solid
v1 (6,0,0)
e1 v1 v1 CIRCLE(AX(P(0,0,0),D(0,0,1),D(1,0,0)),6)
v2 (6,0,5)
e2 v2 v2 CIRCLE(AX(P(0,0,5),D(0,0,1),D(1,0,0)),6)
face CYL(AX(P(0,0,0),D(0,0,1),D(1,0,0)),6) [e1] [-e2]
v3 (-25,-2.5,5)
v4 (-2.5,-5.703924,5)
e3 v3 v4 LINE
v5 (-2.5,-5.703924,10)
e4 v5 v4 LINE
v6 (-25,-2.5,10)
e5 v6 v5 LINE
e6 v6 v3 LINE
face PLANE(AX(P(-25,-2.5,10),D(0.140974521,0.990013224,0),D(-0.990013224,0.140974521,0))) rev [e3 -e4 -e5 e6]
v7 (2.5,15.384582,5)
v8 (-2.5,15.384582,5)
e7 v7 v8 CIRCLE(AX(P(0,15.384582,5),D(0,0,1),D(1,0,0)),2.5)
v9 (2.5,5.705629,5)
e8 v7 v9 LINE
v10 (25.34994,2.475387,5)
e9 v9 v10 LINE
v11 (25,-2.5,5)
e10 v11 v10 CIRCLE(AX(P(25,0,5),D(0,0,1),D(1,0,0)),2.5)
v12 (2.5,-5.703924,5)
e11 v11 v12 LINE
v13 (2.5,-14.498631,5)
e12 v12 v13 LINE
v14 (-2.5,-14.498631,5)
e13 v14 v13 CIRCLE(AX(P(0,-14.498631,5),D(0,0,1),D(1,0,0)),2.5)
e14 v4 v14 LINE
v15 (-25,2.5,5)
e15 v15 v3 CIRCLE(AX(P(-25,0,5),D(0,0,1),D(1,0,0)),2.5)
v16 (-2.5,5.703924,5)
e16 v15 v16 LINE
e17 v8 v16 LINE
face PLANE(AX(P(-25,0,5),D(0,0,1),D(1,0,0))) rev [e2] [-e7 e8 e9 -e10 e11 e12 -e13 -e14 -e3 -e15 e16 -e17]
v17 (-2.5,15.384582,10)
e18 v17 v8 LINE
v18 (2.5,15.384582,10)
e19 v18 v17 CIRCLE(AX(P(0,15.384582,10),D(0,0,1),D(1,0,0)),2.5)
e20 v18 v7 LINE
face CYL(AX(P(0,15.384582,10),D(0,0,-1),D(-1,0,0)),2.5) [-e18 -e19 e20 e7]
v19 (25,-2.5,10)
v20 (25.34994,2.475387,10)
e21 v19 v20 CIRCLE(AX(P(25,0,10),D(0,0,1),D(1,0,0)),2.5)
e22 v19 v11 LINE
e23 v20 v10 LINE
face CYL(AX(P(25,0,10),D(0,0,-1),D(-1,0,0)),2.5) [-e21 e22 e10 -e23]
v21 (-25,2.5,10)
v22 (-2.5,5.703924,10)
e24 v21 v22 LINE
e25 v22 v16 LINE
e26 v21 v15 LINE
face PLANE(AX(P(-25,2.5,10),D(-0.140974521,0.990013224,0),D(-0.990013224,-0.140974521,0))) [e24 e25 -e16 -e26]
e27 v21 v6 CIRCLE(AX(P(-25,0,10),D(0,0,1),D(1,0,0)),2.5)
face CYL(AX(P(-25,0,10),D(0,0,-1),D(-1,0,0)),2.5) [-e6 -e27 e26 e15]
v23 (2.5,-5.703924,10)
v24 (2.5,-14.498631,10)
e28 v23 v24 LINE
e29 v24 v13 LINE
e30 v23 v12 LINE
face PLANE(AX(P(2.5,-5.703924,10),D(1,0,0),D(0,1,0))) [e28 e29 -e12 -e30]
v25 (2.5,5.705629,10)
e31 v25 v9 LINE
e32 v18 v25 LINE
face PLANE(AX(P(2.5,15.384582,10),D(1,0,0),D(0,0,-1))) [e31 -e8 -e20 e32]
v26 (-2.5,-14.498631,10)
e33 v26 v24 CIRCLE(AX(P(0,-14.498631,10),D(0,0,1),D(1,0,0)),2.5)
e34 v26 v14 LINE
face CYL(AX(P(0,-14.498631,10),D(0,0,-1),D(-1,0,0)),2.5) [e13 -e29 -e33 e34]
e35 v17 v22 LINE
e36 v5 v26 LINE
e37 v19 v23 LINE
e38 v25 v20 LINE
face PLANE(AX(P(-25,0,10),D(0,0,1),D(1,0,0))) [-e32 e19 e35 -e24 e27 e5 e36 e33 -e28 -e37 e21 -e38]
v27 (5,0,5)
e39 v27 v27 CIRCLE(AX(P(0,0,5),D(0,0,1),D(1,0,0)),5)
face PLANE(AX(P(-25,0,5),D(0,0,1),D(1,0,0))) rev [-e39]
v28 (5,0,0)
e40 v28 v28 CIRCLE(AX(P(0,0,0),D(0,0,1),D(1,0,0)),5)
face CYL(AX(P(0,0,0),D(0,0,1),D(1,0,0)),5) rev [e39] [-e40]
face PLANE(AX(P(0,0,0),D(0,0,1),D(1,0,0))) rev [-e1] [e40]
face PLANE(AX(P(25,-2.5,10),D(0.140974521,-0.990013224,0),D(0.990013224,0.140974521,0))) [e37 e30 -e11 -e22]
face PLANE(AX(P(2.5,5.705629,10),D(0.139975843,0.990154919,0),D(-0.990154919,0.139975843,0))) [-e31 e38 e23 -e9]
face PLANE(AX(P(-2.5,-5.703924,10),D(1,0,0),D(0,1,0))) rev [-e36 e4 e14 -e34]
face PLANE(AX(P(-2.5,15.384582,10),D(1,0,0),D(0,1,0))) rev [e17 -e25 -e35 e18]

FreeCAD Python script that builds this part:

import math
import FreeCAD as App
import Part
import Sketcher
from FreeCAD import Vector
Q = App.Units.Quantity

doc = App.newDocument("Part")
body = doc.addObject("PartDesign::Body", "Body")

sketch1 = body.newObject("Sketcher::SketchObject", "Sketch")
sketch1.AttachmentSupport = (doc.getObject("XY_Plane"), [""])
sketch1.MapMode = "FlatFace"
sketch1.addGeometry(Part.Circle(Vector(0, 0, 0), Vector(0, 0, 1), 6), False)
sketch1.addGeometry(Part.Circle(Vector(0, 0, 0), Vector(0, 0, 1), 5), False)
sketch1.addConstraint(Sketcher.Constraint("Coincident", 0, 3, -1, 1))
sketch1.addConstraint(Sketcher.Constraint("Coincident", 1, 3, -1, 1))
sketch1.addConstraint(Sketcher.Constraint("Diameter", 0, Q("12 mm")))
sketch1.addConstraint(Sketcher.Constraint("Diameter", 1, Q("10 mm")))

sketch2 = body.newObject("Sketcher::SketchObject", "Sketch001")
sketch2.AttachmentSupport = (doc.getObject("XZ_Plane"), [""])
sketch2.MapMode = "FlatFace"
sketch2.addGeometry(Part.LineSegment(Vector(0, 0, 0), Vector(0, 5, 0)), False)
sketch2.addConstraint(Sketcher.Constraint("Vertical", 0))
sketch2.addConstraint(Sketcher.Constraint("Coincident", 0, 1, -1, 1))
sketch2.addConstraint(Sketcher.Constraint("DistanceY", 0, 1, 0, 2, Q("5 mm")))
doc.recompute()

additivepipe = body.newObject("PartDesign::AdditivePipe", "AdditivePipe")
additivepipe.Profile = sketch1
additivepipe.Spine = (sketch2, ["Edge1"])

sketch3 = body.newObject("Sketcher::SketchObject", "Sketch002")
sketch3.AttachmentSupport = (doc.getObject("XY_Plane"), [""])
sketch3.MapMode = "FlatFace"
sketch3.AttachmentOffset = App.Placement(Vector(0, 0, 5), App.Rotation())
sketch3.addGeometry(Part.LineSegment(Vector(-2.5, 5.7, 0), Vector(-25, 2.5, 0)), False)
sketch3.addGeometry(Part.ArcOfCircle(Part.Circle(Vector(-25, 0, 0), Vector(0, 0, 1), 2.5), math.radians(90), math.radians(270)), False)
sketch3.addGeometry(Part.LineSegment(Vector(-25, -2.5, 0), Vector(-2.5, -5.7, 0)), False)
sketch3.addGeometry(Part.LineSegment(Vector(-2.5, -5.7, 0), Vector(-2.5, -14.5, 0)), False)
sketch3.addGeometry(Part.ArcOfCircle(Part.Circle(Vector(0, -14.5, 0), Vector(0, 0, 1), 2.5), math.radians(180), math.radians(360)), False)
sketch3.addGeometry(Part.LineSegment(Vector(2.5, -14.5, 0), Vector(2.5, -5.7, 0)), False)
sketch3.addGeometry(Part.LineSegment(Vector(2.5, -5.7, 0), Vector(25, -2.5, 0)), False)
sketch3.addGeometry(Part.ArcOfCircle(Part.Circle(Vector(25, 0, 0), Vector(0, 0, 1), 2.5), math.radians(-90), math.radians(82)), False)
sketch3.addGeometry(Part.LineSegment(Vector(25.3, 2.5, 0), Vector(2.5, 5.7, 0)), False)
sketch3.addGeometry(Part.LineSegment(Vector(2.5, 5.7, 0), Vector(2.5, 15.4, 0)), False)
sketch3.addGeometry(Part.ArcOfCircle(Part.Circle(Vector(0, 15.4, 0), Vector(0, 0, 1), 2.5), math.radians(0), math.radians(180)), False)
sketch3.addGeometry(Part.LineSegment(Vector(-2.5, 15.4, 0), Vector(-2.5, 5.7, 0)), False)
sketch3.addConstraint(Sketcher.Constraint("Coincident", 0, 2, 1, 1))
sketch3.addConstraint(Sketcher.Constraint("Coincident", 1, 2, 2, 1))
sketch3.addConstraint(Sketcher.Constraint("Coincident", 2, 2, 3, 1))
sketch3.addConstraint(Sketcher.Constraint("Tangent", 3, 2, 4, 1))
sketch3.addConstraint(Sketcher.Constraint("Tangent", 4, 2, 5, 1))
sketch3.addConstraint(Sketcher.Constraint("Coincident", 5, 2, 6, 1))
sketch3.addConstraint(Sketcher.Constraint("Coincident", 6, 2, 7, 1))
sketch3.addConstraint(Sketcher.Constraint("Tangent", 7, 2, 8, 1))
sketch3.addConstraint(Sketcher.Constraint("Coincident", 8, 2, 9, 1))
sketch3.addConstraint(Sketcher.Constraint("Tangent", 9, 2, 10, 1))
sketch3.addConstraint(Sketcher.Constraint("Tangent", 10, 2, 11, 1))
sketch3.addConstraint(Sketcher.Constraint("Coincident", 11, 2, 0, 1))
sketch3.addConstraint(Sketcher.Constraint("Vertical", 3))
sketch3.addConstraint(Sketcher.Constraint("Vertical", 5))
sketch3.addConstraint(Sketcher.Constraint("Vertical", 9))
sketch3.addConstraint(Sketcher.Constraint("Vertical", 11))
sketch3.addConstraint(Sketcher.Constraint("Equal", 1, 4))
sketch3.addConstraint(Sketcher.Constraint("Equal", 4, 7))
sketch3.addConstraint(Sketcher.Constraint("Equal", 7, 10))
sketch3.addConstraint(Sketcher.Constraint("Symmetric", 1, 3, 7, 3, -1, 1))
sketch3.addConstraint(Sketcher.Constraint("Symmetric", 5, 2, 11, 2, -1, 1))
sketch3.addConstraint(Sketcher.Constraint("Symmetric", 2, 2, 5, 2, -2))
sketch3.addConstraint(Sketcher.Constraint("Symmetric", 1, 2, 6, 2, -2))
sketch3.addConstraint(Sketcher.Constraint("Parallel", 0, 6))
sketch3.addConstraint(Sketcher.Constraint("Vertical", 1, 3, 0, 2))
sketch3.addConstraint(Sketcher.Constraint("Radius", 1, Q("2.5 mm")))
sketch3.addConstraint(Sketcher.Constraint("DistanceX", 1, 3, -1, 1, Q("25 mm")))
sketch3.addConstraint(Sketcher.Constraint("DistanceY", 11, 2, 11, 1, Q("9.680658 mm")))
sketch3.addConstraint(Sketcher.Constraint("Distance", 0, Q("22.726969 mm")))
sketch3.addConstraint(Sketcher.Constraint("DistanceY", 3, 2, 3, 1, Q("8.794707 mm")))
sketch3.addConstraint(Sketcher.Constraint("DistanceY", 9, 1, 9, 2, Q("9.678953 mm")))
pad1 = body.newObject("PartDesign::Pad", "Pad")
pad1.Profile = sketch3
pad1.Length = 5

doc.recompute()
